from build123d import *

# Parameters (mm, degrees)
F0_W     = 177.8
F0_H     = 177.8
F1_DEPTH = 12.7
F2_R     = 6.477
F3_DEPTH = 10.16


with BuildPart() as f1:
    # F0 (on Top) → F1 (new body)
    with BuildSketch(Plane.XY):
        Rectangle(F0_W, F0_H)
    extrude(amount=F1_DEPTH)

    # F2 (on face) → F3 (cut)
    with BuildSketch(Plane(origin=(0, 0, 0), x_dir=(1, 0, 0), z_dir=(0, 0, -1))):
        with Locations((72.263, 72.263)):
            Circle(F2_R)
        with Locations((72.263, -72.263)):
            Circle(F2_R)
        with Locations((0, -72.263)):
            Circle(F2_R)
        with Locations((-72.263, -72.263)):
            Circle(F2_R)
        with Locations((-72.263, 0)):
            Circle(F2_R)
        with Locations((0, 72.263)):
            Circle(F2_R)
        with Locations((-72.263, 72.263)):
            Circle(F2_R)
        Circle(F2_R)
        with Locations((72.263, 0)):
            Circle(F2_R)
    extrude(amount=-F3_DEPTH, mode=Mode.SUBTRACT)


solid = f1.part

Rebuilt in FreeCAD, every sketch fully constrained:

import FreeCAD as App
import Part
import Sketcher
from FreeCAD import Vector
Q = App.Units.Quantity


def add_polygon(sketch, points):
    """Adds a closed chain of lines whose ends are joined by coincident constraints."""
    first, n = sketch.GeometryCount, len(points)
    for a, b in zip(points, points[1:] + points[:1]):
        sketch.addGeometry(Part.LineSegment(App.Vector(*a, 0), App.Vector(*b, 0)), False)
    for i in range(n):
        sketch.addConstraint(Sketcher.Constraint("Coincident", first + i, 2, first + (i + 1) % n, 1))

doc = App.newDocument("Part")
body = doc.addObject("PartDesign::Body", "Body")

# Sketch on XY plane
sketch1 = body.newObject("Sketcher::SketchObject", "Sketch")
sketch1.AttachmentSupport = (doc.getObject("XY_Plane"), [""])
sketch1.MapMode = "FlatFace"
add_polygon(sketch1, [(-89, 89), (-89, -89), (89, -89), (89, 89)])  # lines 0-3
sketch1.addConstraint(Sketcher.Constraint("Vertical", 0))
sketch1.addConstraint(Sketcher.Constraint("Horizontal", 1))
sketch1.addConstraint(Sketcher.Constraint("Vertical", 2))
sketch1.addConstraint(Sketcher.Constraint("Horizontal", 3))
sketch1.addConstraint(Sketcher.Constraint("Symmetric", 0, 2, 2, 2, -1, 1))
sketch1.addConstraint(Sketcher.Constraint("Equal", 3, 0))
sketch1.addConstraint(Sketcher.Constraint("DistanceX", 1, 1, 1, 2, Q("7 in")))
pad1 = body.newObject("PartDesign::Pad", "Pad")
pad1.Profile = sketch1
pad1.Length = Q("0.5 in")

# Sketch on XY plane
sketch2 = body.newObject("Sketcher::SketchObject", "Sketch001")
sketch2.AttachmentSupport = (doc.getObject("XY_Plane"), [""])
sketch2.MapMode = "FlatFace"
sketch2.addGeometry(Part.Circle(Vector(72, -72, 0), Vector(0, 0, 1), 6), False)
sketch2.addGeometry(Part.Circle(Vector(72, 72, 0), Vector(0, 0, 1), 6), False)
sketch2.addGeometry(Part.Circle(Vector(0, 72, 0), Vector(0, 0, 1), 6), False)
sketch2.addGeometry(Part.Circle(Vector(-72, 72, 0), Vector(0, 0, 1), 6), False)
sketch2.addGeometry(Part.Circle(Vector(-72, 0, 0), Vector(0, 0, 1), 6), False)
sketch2.addGeometry(Part.Circle(Vector(0, -72, 0), Vector(0, 0, 1), 6), False)
sketch2.addGeometry(Part.Circle(Vector(-72, -72, 0), Vector(0, 0, 1), 6), False)
sketch2.addGeometry(Part.Circle(Vector(0, 0, 0), Vector(0, 0, 1), 6), False)
sketch2.addGeometry(Part.Circle(Vector(72, 0, 0), Vector(0, 0, 1), 6), False)
sketch2.addConstraint(Sketcher.Constraint("Coincident", 7, 3, -1, 1))
sketch2.addConstraint(Sketcher.Constraint("Equal", 0, 1))
sketch2.addConstraint(Sketcher.Constraint("Equal", 1, 2))
sketch2.addConstraint(Sketcher.Constraint("Equal", 2, 3))
sketch2.addConstraint(Sketcher.Constraint("Equal", 3, 4))
sketch2.addConstraint(Sketcher.Constraint("Equal", 4, 5))
sketch2.addConstraint(Sketcher.Constraint("Equal", 5, 6))
sketch2.addConstraint(Sketcher.Constraint("Equal", 6, 7))
sketch2.addConstraint(Sketcher.Constraint("Equal", 7, 8))
sketch2.addConstraint(Sketcher.Constraint("Symmetric", 0, 3, 3, 3, -1, 1))
sketch2.addConstraint(Sketcher.Constraint("Symmetric", 2, 3, 5, 3, -1, 1))
sketch2.addConstraint(Sketcher.Constraint("Symmetric", 1, 3, 6, 3, -1, 1))
sketch2.addConstraint(Sketcher.Constraint("Symmetric", 4, 3, 8, 3, -1, 1))
sketch2.addConstraint(Sketcher.Constraint("Symmetric", 1, 3, 3, 3, -2))
sketch2.addConstraint(Sketcher.Constraint("PointOnObject", 2, 3, -2))
sketch2.addConstraint(Sketcher.Constraint("PointOnObject", 4, 3, -1))
sketch2.addConstraint(Sketcher.Constraint("Horizontal", 1, 3, 2, 3))
sketch2.addConstraint(Sketcher.Constraint("Vertical", 3, 3, 4, 3))
sketch2.addConstraint(Sketcher.Constraint("Diameter", 0, Q("0.51 in")))
sketch2.addConstraint(Sketcher.Constraint("DistanceY", 0, 3, 1, 3, Q("5.69 in")))
sketch2.addConstraint(Sketcher.Constraint("DistanceX", 3, 3, 1, 3, Q("5.69 in")))
pocket1 = body.newObject("PartDesign::Pocket", "Pocket")
pocket1.Profile = sketch2
pocket1.Length = Q("0.4 in")
pocket1.Reversed = True

doc.recompute()
